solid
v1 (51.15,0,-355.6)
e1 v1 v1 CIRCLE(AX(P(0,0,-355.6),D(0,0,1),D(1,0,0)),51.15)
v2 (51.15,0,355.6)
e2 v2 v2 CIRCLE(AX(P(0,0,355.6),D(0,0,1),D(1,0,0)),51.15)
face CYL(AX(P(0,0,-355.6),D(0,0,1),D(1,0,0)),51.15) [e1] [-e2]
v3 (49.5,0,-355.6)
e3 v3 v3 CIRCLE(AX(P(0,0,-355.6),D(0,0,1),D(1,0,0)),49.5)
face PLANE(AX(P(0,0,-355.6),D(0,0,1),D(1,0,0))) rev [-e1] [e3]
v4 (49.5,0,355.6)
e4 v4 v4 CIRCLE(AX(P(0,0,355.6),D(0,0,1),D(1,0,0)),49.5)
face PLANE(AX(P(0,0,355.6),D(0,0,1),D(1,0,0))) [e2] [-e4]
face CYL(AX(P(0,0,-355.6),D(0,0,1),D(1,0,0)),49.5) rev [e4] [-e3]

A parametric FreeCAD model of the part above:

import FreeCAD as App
import Part
import Sketcher
from FreeCAD import Vector

doc = App.newDocument("Part")
body = doc.addObject("PartDesign::Body", "Body")

sketch1 = body.newObject("Sketcher::SketchObject", "Sketch")
sketch1.AttachmentSupport = (doc.getObject("XY_Plane"), [""])
sketch1.MapMode = "FlatFace"
sketch1.addGeometry([
    Part.Circle(Vector(0, 0, 0), Vector(0, 0, 1), 51),
    Part.Circle(Vector(0, 0, 0), Vector(0, 0, 1), 50),
], False)
sketch1.addConstraint([
    Sketcher.Constraint("Coincident", 0, 3, -1, 1),
    Sketcher.Constraint("Coincident", 1, 3, -1, 1),
    Sketcher.Constraint("Diameter", 1, 99.0),
    Sketcher.Constraint("Diameter", 0, 102.3),
])
pad1 = body.newObject("PartDesign::Pad", "Pad")
pad1.Profile = sketch1
pad1.Type = "TwoLengths"
pad1.Length = 355.6
pad1.Length2 = 355.6

doc.recompute()
